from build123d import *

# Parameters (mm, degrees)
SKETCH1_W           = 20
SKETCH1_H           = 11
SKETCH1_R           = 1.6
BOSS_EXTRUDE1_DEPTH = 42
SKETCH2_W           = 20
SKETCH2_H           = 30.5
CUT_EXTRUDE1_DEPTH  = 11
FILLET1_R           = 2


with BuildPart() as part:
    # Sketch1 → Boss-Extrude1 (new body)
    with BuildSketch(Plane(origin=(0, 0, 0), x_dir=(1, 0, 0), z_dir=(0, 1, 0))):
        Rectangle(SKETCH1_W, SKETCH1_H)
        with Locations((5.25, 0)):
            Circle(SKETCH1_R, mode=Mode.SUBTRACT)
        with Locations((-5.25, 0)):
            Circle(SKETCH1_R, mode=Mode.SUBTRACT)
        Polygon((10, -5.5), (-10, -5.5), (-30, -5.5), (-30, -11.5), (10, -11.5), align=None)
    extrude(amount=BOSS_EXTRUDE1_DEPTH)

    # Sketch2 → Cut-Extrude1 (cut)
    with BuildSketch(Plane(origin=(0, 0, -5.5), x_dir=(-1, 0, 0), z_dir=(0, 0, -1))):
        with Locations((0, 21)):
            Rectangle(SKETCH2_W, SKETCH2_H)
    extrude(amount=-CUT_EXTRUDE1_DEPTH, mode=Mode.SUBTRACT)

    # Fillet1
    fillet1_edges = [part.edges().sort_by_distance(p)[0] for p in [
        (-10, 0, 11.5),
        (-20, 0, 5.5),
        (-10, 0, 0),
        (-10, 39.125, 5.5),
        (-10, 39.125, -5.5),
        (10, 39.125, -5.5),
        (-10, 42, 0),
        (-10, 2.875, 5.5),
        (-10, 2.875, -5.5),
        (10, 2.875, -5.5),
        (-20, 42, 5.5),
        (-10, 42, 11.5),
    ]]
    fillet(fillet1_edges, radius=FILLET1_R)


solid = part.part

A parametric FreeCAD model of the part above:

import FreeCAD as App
import Part
import Sketcher

V = App.Vector
Q = App.Units.Quantity


def edges_at(feature, points):
    """Names of the edges that pass closest to the given points."""
    edges = feature.Shape.Edges
    near = lambda p: min(range(len(edges)), key=lambda i: edges[i].distToShape(Part.Vertex(*p))[0])
    return sorted({f"Edge{near(p) + 1}" for p in points})


def add_polygon(sketch, points):
    """Adds a closed chain of lines whose ends are joined by coincident constraints."""
    first, n = sketch.GeometryCount, len(points)
    for a, b in zip(points, points[1:] + points[:1]):
        sketch.addGeometry(Part.LineSegment(App.Vector(*a, 0), App.Vector(*b, 0)), False)
    for i in range(n):
        sketch.addConstraint(Sketcher.Constraint("Coincident", first + i, 2, first + (i + 1) % n, 1))

doc = App.newDocument("Part")
body = doc.addObject("PartDesign::Body", "Body")

# Sketch on XZ plane
sketch1 = body.newObject("Sketcher::SketchObject", "Sketch")
sketch1.AttachmentSupport = (doc.getObject("XZ_Plane"), [""])
sketch1.MapMode = "FlatFace"
add_polygon(sketch1, [(-10, -5.5), (-10, 5.5), (-30, 5.5), (-30, 11.5), (10, 11.5), (10, -5.5)])  # lines 0-5
sketch1.addGeometry(Part.Circle(V(-5.25, 0, 0), V(0, 0, 1), 1.6), False)  # 6
sketch1.addGeometry(Part.Circle(V(5.25, 0, 0), V(0, 0, 1), 1.6), False)  # 7
sketch1.addConstraint(Sketcher.Constraint("Vertical", 0))
sketch1.addConstraint(Sketcher.Constraint("Horizontal", 1))
sketch1.addConstraint(Sketcher.Constraint("Vertical", 2))
sketch1.addConstraint(Sketcher.Constraint("Horizontal", 3))
sketch1.addConstraint(Sketcher.Constraint("Vertical", 4))
sketch1.addConstraint(Sketcher.Constraint("Horizontal", 5))
sketch1.addConstraint(Sketcher.Constraint("Equal", 6, 7))
sketch1.addConstraint(Sketcher.Constraint("Symmetric", 6, 3, 7, 3, -1, 1))
sketch1.addConstraint(Sketcher.Constraint("Symmetric", 0, 2, 4, 2, -1, 1))
sketch1.addConstraint(Sketcher.Constraint("PointOnObject", 6, 3, -1))
sketch1.addConstraint(Sketcher.Constraint("Equal", 1, 5))
sketch1.addConstraint(Sketcher.Constraint("Diameter", 6, Q("3.2 mm")))
sketch1.addConstraint(Sketcher.Constraint("DistanceX", 1, 2, 1, 1, Q("20 mm")))
sketch1.addConstraint(Sketcher.Constraint("DistanceY", 0, 1, 0, 2, Q("11 mm")))
sketch1.addConstraint(Sketcher.Constraint("DistanceY", 2, 1, 2, 2, Q("6 mm")))
sketch1.addConstraint(Sketcher.Constraint("DistanceX", 6, 3, 7, 3, Q("10.5 mm")))
pad1 = body.newObject("PartDesign::Pad", "Pad")
pad1.Profile = sketch1
pad1.Length = 42
pad1.Reversed = True

# Sketch on XY plane
sketch2 = body.newObject("Sketcher::SketchObject", "Sketch001")
sketch2.AttachmentSupport = (doc.getObject("XY_Plane"), [""])
sketch2.MapMode = "FlatFace"
sketch2.AttachmentOffset = App.Placement(V(0, 0, -5.5), App.Rotation())
add_polygon(sketch2, [(10, 36.25), (10, 5.75), (-10, 5.75), (-10, 36.25)])  # lines 0-3
sketch2.addConstraint(Sketcher.Constraint("Vertical", 0))
sketch2.addConstraint(Sketcher.Constraint("Horizontal", 1))
sketch2.addConstraint(Sketcher.Constraint("Vertical", 2))
sketch2.addConstraint(Sketcher.Constraint("Horizontal", 3))
sketch2.addConstraint(Sketcher.Constraint("DistanceX", 1, 2, 1, 1, Q("20 mm")))
sketch2.addConstraint(Sketcher.Constraint("DistanceY", 0, 2, 0, 1, Q("30.5 mm")))
sketch2.addConstraint(Sketcher.Constraint("DistanceX", -1, 1, 0, 2, Q("10 mm")))
sketch2.addConstraint(Sketcher.Constraint("DistanceY", -1, 1, 0, 2, Q("5.75 mm")))
pocket1 = body.newObject("PartDesign::Pocket", "Pocket")
pocket1.Profile = sketch2
pocket1.Length = 11
pocket1.Reversed = True
doc.recompute()

fillet = body.newObject("PartDesign::Fillet", "Fillet")
fillet.Base = (pocket1, edges_at(pocket1, [
    (-10, 0, 11.5),
    (-20, 0, 5.5),
    (-10, 0, 0),
    (-10, 39.125, 5.5),
    (-10, 39.125, -5.5),
    (10, 39.125, -5.5),
    (-10, 42, 0),
    (-10, 2.875, 5.5),
    (-10, 2.875, -5.5),
    (10, 2.875, -5.5),
    (-20, 42, 5.5),
    (-10, 42, 11.5),
]))
fillet.Radius = 2

doc.recompute()
